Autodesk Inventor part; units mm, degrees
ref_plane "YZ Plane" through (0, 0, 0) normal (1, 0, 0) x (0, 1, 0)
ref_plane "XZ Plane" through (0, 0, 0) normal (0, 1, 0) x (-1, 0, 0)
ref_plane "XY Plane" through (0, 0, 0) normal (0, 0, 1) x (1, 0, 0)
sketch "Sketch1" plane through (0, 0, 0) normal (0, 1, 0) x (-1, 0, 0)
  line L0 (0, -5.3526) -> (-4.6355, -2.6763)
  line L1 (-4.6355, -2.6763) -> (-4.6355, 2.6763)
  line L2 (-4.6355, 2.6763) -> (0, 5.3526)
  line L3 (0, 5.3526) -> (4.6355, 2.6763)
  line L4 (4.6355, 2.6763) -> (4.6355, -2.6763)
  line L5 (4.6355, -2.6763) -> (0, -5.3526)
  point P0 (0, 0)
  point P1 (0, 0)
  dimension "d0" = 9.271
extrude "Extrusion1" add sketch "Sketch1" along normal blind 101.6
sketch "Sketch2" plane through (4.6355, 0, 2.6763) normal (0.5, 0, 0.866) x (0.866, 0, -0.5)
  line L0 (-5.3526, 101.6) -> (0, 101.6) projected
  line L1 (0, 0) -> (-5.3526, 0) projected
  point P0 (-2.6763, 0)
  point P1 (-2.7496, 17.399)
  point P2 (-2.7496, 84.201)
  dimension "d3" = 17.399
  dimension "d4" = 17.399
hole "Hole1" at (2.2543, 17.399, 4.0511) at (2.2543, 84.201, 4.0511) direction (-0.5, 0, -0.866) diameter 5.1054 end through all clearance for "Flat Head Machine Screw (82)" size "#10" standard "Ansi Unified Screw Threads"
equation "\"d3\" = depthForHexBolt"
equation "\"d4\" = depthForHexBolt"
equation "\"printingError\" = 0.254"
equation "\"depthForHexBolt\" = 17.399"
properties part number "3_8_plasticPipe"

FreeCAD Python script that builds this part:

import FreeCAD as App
import Part
import Sketcher
Q = App.Units.Quantity

doc = App.newDocument("Part")
body = doc.addObject("PartDesign::Body", "Body")

# Sketch on XZ plane
sketch1 = body.newObject("Sketcher::SketchObject", "Sketch")
sketch1.AttachmentSupport = (doc.getObject("XZ_Plane"), [""])
sketch1.MapMode = "FlatFace"
sketch1.addGeometry(Part.LineSegment(App.Vector(5, -3, 0), App.Vector(0, -5, 0)), False)
sketch1.addGeometry(Part.LineSegment(App.Vector(0, -5, 0), App.Vector(-5, -3, 0)), False)
sketch1.addGeometry(Part.LineSegment(App.Vector(-5, -3, 0), App.Vector(-5, 3, 0)), False)
sketch1.addGeometry(Part.LineSegment(App.Vector(-5, 3, 0), App.Vector(0, 5, 0)), False)
sketch1.addGeometry(Part.LineSegment(App.Vector(0, 5, 0), App.Vector(5, 3, 0)), False)
sketch1.addGeometry(Part.LineSegment(App.Vector(5, 3, 0), App.Vector(5, -3, 0)), False)
sketch1.addConstraint(Sketcher.Constraint("Coincident", 0, 2, 1, 1))
sketch1.addConstraint(Sketcher.Constraint("Coincident", 1, 2, 2, 1))
sketch1.addConstraint(Sketcher.Constraint("Coincident", 2, 2, 3, 1))
sketch1.addConstraint(Sketcher.Constraint("Coincident", 3, 2, 4, 1))
sketch1.addConstraint(Sketcher.Constraint("Coincident", 4, 2, 5, 1))
sketch1.addConstraint(Sketcher.Constraint("Coincident", 5, 2, 0, 1))
sketch1.addConstraint(Sketcher.Constraint("Vertical", 2))
sketch1.addConstraint(Sketcher.Constraint("Vertical", 5))
sketch1.addConstraint(Sketcher.Constraint("Symmetric", 0, 2, 3, 2, -1, 1))
sketch1.addConstraint(Sketcher.Constraint("Symmetric", 1, 2, 4, 2, -1, 1))
sketch1.addConstraint(Sketcher.Constraint("PointOnObject", 0, 2, -2))
sketch1.addConstraint(Sketcher.Constraint("Parallel", 0, 3))
sketch1.addConstraint(Sketcher.Constraint("Horizontal", 2, 2, 4, 2))
sketch1.addConstraint(Sketcher.Constraint("Angle", 0, Q("-150 deg")))
sketch1.addConstraint(Sketcher.Constraint("DistanceX", 2, 2, 4, 2, Q("0.365 in")))
sketch1.addConstraint(Sketcher.Constraint("DistanceY", 2, 1, 2, 2, Q("5.3526 mm")))
pad1 = body.newObject("PartDesign::Pad", "Pad")
pad1.Profile = sketch1
pad1.Length = Q("4 in")
pad1.Reversed = True

# Sketch on an angled plane
sketch2 = body.newObject("Sketcher::SketchObject", "Sketch001")
sketch2.Placement = App.Placement(App.Vector(2.317753, 0, 4.014466), App.Rotation(App.Vector(0.866025404, 0, -0.5), App.Vector(0, 1, 0), App.Vector(0.5, 0, 0.866025404), "ZXY"))
sketch2.addGeometry(Part.Circle(App.Vector(-0.1, 17.4, 0), App.Vector(0, 0, 1), 2.6), False)
sketch2.addGeometry(Part.Circle(App.Vector(-0.1, 84.2, 0), App.Vector(0, 0, 1), 2.6), False)
sketch2.addConstraint(Sketcher.Constraint("Equal", 0, 1))
sketch2.addConstraint(Sketcher.Constraint("Vertical", 0, 3, 1, 3))
sketch2.addConstraint(Sketcher.Constraint("Diameter", 0, Q("0.201 in")))
sketch2.addConstraint(Sketcher.Constraint("DistanceY", 0, 3, 1, 3, Q("2.63 in")))
sketch2.addConstraint(Sketcher.Constraint("DistanceY", -1, 1, 0, 3, Q("0.685 in")))
sketch2.addConstraint(Sketcher.Constraint("DistanceX", 0, 3, -1, 1, Q("0.0733 mm")))
doc.recompute()
hole = body.newObject("PartDesign::Hole", "Hole")
hole.Profile = sketch2
hole.ThreadType = "None"
hole.Diameter = Q("0.201 in")
hole.DepthType = "ThroughAll"

doc.recompute()
